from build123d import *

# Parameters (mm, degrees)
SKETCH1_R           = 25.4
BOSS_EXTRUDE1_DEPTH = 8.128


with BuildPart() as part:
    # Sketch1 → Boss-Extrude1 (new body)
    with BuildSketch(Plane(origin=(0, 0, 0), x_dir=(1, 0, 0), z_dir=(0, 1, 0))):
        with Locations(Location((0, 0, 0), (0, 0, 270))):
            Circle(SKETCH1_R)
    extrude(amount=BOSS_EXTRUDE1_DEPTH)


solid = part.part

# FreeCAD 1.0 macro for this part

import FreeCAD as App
import Part
import Sketcher
from FreeCAD import Vector
Q = App.Units.Quantity

doc = App.newDocument("Part")
body = doc.addObject("PartDesign::Body", "Body")

# Sketch on XZ plane
sketch1 = body.newObject("Sketcher::SketchObject", "Sketch")
sketch1.AttachmentSupport = (doc.getObject("XZ_Plane"), [""])
sketch1.MapMode = "FlatFace"
sketch1.addGeometry(Part.Circle(Vector(0, 0, 0), Vector(0, 0, 1), 25), False)
sketch1.addConstraint(Sketcher.Constraint("Coincident", 0, 3, -1, 1))
sketch1.addConstraint(Sketcher.Constraint("Diameter", 0, Q("2 in")))
pad1 = body.newObject("PartDesign::Pad", "Pad")
pad1.Profile = sketch1
pad1.Length = Q("0.32 in")
pad1.Reversed = True

doc.recompute()
